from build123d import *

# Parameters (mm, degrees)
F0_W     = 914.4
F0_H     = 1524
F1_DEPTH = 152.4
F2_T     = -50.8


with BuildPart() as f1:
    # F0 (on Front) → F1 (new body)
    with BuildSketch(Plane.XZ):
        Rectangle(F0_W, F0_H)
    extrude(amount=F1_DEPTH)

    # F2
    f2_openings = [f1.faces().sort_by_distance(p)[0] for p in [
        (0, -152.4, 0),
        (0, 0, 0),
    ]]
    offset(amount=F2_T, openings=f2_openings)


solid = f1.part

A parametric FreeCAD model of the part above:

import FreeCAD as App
import Part
import Sketcher

V = App.Vector
Q = App.Units.Quantity


def faces_at(feature, points):
    """Names of the faces that lie closest to the given points."""
    faces = feature.Shape.Faces
    near = lambda p: min(range(len(faces)), key=lambda i: faces[i].distToShape(Part.Vertex(*p))[0])
    return sorted({f"Face{near(p) + 1}" for p in points})


def add_polygon(sketch, points):
    """Adds a closed chain of lines whose ends are joined by coincident constraints."""
    first, n = sketch.GeometryCount, len(points)
    for a, b in zip(points, points[1:] + points[:1]):
        sketch.addGeometry(Part.LineSegment(App.Vector(*a, 0), App.Vector(*b, 0)), False)
    for i in range(n):
        sketch.addConstraint(Sketcher.Constraint("Coincident", first + i, 2, first + (i + 1) % n, 1))

doc = App.newDocument("Part")
params = doc.addObject("Spreadsheet::Sheet", "Params")
for row, (alias, value) in enumerate([
    ("sketch1_width", "36 in"),
    ("sketch1_height", "60 in"),
    ("pad1_length", "6 in"),
    ("thickness_wall", "2 in"),
], start=1):
    params.set(f"A{row}", alias)
    params.set(f"B{row}", "=" + value)
    params.setAlias(f"B{row}", alias)

body = doc.addObject("PartDesign::Body", "Body")

sketch1 = body.newObject("Sketcher::SketchObject", "Sketch")
sketch1.AttachmentSupport = (doc.getObject("XZ_Plane"), [""])
sketch1.MapMode = "FlatFace"
add_polygon(sketch1, [(-457.2, 762), (-457.2, -762), (457.2, -762), (457.2, 762)])
sketch1.addConstraint(Sketcher.Constraint("Vertical", 0))
sketch1.addConstraint(Sketcher.Constraint("Horizontal", 1))
sketch1.addConstraint(Sketcher.Constraint("Vertical", 2))
sketch1.addConstraint(Sketcher.Constraint("Horizontal", 3))
sketch1.addConstraint(Sketcher.Constraint("Symmetric", 0, 2, 2, 2, -1, 1))
sketch1.addConstraint(Sketcher.Constraint("DistanceX", 1, 1, 1, 2, Q("36 in")))
sketch1.addConstraint(Sketcher.Constraint("DistanceY", 0, 2, 0, 1, Q("60 in")))
sketch1.setExpression("Constraints[9]", "Params.sketch1_width")
sketch1.setExpression("Constraints[10]", "Params.sketch1_height")
pad1 = body.newObject("PartDesign::Pad", "Pad")
pad1.Profile = sketch1
pad1.setExpression("Length", "Params.pad1_length")
doc.recompute()

thickness = body.newObject("PartDesign::Thickness", "Thickness")
thickness.Base = (pad1, faces_at(pad1, [(0, -152.4, 0), (0, 0, 0)]))
thickness.setExpression("Value", "Params.thickness_wall")
thickness.Reversed = True
thickness.Join = "Arc"

doc.recompute()
